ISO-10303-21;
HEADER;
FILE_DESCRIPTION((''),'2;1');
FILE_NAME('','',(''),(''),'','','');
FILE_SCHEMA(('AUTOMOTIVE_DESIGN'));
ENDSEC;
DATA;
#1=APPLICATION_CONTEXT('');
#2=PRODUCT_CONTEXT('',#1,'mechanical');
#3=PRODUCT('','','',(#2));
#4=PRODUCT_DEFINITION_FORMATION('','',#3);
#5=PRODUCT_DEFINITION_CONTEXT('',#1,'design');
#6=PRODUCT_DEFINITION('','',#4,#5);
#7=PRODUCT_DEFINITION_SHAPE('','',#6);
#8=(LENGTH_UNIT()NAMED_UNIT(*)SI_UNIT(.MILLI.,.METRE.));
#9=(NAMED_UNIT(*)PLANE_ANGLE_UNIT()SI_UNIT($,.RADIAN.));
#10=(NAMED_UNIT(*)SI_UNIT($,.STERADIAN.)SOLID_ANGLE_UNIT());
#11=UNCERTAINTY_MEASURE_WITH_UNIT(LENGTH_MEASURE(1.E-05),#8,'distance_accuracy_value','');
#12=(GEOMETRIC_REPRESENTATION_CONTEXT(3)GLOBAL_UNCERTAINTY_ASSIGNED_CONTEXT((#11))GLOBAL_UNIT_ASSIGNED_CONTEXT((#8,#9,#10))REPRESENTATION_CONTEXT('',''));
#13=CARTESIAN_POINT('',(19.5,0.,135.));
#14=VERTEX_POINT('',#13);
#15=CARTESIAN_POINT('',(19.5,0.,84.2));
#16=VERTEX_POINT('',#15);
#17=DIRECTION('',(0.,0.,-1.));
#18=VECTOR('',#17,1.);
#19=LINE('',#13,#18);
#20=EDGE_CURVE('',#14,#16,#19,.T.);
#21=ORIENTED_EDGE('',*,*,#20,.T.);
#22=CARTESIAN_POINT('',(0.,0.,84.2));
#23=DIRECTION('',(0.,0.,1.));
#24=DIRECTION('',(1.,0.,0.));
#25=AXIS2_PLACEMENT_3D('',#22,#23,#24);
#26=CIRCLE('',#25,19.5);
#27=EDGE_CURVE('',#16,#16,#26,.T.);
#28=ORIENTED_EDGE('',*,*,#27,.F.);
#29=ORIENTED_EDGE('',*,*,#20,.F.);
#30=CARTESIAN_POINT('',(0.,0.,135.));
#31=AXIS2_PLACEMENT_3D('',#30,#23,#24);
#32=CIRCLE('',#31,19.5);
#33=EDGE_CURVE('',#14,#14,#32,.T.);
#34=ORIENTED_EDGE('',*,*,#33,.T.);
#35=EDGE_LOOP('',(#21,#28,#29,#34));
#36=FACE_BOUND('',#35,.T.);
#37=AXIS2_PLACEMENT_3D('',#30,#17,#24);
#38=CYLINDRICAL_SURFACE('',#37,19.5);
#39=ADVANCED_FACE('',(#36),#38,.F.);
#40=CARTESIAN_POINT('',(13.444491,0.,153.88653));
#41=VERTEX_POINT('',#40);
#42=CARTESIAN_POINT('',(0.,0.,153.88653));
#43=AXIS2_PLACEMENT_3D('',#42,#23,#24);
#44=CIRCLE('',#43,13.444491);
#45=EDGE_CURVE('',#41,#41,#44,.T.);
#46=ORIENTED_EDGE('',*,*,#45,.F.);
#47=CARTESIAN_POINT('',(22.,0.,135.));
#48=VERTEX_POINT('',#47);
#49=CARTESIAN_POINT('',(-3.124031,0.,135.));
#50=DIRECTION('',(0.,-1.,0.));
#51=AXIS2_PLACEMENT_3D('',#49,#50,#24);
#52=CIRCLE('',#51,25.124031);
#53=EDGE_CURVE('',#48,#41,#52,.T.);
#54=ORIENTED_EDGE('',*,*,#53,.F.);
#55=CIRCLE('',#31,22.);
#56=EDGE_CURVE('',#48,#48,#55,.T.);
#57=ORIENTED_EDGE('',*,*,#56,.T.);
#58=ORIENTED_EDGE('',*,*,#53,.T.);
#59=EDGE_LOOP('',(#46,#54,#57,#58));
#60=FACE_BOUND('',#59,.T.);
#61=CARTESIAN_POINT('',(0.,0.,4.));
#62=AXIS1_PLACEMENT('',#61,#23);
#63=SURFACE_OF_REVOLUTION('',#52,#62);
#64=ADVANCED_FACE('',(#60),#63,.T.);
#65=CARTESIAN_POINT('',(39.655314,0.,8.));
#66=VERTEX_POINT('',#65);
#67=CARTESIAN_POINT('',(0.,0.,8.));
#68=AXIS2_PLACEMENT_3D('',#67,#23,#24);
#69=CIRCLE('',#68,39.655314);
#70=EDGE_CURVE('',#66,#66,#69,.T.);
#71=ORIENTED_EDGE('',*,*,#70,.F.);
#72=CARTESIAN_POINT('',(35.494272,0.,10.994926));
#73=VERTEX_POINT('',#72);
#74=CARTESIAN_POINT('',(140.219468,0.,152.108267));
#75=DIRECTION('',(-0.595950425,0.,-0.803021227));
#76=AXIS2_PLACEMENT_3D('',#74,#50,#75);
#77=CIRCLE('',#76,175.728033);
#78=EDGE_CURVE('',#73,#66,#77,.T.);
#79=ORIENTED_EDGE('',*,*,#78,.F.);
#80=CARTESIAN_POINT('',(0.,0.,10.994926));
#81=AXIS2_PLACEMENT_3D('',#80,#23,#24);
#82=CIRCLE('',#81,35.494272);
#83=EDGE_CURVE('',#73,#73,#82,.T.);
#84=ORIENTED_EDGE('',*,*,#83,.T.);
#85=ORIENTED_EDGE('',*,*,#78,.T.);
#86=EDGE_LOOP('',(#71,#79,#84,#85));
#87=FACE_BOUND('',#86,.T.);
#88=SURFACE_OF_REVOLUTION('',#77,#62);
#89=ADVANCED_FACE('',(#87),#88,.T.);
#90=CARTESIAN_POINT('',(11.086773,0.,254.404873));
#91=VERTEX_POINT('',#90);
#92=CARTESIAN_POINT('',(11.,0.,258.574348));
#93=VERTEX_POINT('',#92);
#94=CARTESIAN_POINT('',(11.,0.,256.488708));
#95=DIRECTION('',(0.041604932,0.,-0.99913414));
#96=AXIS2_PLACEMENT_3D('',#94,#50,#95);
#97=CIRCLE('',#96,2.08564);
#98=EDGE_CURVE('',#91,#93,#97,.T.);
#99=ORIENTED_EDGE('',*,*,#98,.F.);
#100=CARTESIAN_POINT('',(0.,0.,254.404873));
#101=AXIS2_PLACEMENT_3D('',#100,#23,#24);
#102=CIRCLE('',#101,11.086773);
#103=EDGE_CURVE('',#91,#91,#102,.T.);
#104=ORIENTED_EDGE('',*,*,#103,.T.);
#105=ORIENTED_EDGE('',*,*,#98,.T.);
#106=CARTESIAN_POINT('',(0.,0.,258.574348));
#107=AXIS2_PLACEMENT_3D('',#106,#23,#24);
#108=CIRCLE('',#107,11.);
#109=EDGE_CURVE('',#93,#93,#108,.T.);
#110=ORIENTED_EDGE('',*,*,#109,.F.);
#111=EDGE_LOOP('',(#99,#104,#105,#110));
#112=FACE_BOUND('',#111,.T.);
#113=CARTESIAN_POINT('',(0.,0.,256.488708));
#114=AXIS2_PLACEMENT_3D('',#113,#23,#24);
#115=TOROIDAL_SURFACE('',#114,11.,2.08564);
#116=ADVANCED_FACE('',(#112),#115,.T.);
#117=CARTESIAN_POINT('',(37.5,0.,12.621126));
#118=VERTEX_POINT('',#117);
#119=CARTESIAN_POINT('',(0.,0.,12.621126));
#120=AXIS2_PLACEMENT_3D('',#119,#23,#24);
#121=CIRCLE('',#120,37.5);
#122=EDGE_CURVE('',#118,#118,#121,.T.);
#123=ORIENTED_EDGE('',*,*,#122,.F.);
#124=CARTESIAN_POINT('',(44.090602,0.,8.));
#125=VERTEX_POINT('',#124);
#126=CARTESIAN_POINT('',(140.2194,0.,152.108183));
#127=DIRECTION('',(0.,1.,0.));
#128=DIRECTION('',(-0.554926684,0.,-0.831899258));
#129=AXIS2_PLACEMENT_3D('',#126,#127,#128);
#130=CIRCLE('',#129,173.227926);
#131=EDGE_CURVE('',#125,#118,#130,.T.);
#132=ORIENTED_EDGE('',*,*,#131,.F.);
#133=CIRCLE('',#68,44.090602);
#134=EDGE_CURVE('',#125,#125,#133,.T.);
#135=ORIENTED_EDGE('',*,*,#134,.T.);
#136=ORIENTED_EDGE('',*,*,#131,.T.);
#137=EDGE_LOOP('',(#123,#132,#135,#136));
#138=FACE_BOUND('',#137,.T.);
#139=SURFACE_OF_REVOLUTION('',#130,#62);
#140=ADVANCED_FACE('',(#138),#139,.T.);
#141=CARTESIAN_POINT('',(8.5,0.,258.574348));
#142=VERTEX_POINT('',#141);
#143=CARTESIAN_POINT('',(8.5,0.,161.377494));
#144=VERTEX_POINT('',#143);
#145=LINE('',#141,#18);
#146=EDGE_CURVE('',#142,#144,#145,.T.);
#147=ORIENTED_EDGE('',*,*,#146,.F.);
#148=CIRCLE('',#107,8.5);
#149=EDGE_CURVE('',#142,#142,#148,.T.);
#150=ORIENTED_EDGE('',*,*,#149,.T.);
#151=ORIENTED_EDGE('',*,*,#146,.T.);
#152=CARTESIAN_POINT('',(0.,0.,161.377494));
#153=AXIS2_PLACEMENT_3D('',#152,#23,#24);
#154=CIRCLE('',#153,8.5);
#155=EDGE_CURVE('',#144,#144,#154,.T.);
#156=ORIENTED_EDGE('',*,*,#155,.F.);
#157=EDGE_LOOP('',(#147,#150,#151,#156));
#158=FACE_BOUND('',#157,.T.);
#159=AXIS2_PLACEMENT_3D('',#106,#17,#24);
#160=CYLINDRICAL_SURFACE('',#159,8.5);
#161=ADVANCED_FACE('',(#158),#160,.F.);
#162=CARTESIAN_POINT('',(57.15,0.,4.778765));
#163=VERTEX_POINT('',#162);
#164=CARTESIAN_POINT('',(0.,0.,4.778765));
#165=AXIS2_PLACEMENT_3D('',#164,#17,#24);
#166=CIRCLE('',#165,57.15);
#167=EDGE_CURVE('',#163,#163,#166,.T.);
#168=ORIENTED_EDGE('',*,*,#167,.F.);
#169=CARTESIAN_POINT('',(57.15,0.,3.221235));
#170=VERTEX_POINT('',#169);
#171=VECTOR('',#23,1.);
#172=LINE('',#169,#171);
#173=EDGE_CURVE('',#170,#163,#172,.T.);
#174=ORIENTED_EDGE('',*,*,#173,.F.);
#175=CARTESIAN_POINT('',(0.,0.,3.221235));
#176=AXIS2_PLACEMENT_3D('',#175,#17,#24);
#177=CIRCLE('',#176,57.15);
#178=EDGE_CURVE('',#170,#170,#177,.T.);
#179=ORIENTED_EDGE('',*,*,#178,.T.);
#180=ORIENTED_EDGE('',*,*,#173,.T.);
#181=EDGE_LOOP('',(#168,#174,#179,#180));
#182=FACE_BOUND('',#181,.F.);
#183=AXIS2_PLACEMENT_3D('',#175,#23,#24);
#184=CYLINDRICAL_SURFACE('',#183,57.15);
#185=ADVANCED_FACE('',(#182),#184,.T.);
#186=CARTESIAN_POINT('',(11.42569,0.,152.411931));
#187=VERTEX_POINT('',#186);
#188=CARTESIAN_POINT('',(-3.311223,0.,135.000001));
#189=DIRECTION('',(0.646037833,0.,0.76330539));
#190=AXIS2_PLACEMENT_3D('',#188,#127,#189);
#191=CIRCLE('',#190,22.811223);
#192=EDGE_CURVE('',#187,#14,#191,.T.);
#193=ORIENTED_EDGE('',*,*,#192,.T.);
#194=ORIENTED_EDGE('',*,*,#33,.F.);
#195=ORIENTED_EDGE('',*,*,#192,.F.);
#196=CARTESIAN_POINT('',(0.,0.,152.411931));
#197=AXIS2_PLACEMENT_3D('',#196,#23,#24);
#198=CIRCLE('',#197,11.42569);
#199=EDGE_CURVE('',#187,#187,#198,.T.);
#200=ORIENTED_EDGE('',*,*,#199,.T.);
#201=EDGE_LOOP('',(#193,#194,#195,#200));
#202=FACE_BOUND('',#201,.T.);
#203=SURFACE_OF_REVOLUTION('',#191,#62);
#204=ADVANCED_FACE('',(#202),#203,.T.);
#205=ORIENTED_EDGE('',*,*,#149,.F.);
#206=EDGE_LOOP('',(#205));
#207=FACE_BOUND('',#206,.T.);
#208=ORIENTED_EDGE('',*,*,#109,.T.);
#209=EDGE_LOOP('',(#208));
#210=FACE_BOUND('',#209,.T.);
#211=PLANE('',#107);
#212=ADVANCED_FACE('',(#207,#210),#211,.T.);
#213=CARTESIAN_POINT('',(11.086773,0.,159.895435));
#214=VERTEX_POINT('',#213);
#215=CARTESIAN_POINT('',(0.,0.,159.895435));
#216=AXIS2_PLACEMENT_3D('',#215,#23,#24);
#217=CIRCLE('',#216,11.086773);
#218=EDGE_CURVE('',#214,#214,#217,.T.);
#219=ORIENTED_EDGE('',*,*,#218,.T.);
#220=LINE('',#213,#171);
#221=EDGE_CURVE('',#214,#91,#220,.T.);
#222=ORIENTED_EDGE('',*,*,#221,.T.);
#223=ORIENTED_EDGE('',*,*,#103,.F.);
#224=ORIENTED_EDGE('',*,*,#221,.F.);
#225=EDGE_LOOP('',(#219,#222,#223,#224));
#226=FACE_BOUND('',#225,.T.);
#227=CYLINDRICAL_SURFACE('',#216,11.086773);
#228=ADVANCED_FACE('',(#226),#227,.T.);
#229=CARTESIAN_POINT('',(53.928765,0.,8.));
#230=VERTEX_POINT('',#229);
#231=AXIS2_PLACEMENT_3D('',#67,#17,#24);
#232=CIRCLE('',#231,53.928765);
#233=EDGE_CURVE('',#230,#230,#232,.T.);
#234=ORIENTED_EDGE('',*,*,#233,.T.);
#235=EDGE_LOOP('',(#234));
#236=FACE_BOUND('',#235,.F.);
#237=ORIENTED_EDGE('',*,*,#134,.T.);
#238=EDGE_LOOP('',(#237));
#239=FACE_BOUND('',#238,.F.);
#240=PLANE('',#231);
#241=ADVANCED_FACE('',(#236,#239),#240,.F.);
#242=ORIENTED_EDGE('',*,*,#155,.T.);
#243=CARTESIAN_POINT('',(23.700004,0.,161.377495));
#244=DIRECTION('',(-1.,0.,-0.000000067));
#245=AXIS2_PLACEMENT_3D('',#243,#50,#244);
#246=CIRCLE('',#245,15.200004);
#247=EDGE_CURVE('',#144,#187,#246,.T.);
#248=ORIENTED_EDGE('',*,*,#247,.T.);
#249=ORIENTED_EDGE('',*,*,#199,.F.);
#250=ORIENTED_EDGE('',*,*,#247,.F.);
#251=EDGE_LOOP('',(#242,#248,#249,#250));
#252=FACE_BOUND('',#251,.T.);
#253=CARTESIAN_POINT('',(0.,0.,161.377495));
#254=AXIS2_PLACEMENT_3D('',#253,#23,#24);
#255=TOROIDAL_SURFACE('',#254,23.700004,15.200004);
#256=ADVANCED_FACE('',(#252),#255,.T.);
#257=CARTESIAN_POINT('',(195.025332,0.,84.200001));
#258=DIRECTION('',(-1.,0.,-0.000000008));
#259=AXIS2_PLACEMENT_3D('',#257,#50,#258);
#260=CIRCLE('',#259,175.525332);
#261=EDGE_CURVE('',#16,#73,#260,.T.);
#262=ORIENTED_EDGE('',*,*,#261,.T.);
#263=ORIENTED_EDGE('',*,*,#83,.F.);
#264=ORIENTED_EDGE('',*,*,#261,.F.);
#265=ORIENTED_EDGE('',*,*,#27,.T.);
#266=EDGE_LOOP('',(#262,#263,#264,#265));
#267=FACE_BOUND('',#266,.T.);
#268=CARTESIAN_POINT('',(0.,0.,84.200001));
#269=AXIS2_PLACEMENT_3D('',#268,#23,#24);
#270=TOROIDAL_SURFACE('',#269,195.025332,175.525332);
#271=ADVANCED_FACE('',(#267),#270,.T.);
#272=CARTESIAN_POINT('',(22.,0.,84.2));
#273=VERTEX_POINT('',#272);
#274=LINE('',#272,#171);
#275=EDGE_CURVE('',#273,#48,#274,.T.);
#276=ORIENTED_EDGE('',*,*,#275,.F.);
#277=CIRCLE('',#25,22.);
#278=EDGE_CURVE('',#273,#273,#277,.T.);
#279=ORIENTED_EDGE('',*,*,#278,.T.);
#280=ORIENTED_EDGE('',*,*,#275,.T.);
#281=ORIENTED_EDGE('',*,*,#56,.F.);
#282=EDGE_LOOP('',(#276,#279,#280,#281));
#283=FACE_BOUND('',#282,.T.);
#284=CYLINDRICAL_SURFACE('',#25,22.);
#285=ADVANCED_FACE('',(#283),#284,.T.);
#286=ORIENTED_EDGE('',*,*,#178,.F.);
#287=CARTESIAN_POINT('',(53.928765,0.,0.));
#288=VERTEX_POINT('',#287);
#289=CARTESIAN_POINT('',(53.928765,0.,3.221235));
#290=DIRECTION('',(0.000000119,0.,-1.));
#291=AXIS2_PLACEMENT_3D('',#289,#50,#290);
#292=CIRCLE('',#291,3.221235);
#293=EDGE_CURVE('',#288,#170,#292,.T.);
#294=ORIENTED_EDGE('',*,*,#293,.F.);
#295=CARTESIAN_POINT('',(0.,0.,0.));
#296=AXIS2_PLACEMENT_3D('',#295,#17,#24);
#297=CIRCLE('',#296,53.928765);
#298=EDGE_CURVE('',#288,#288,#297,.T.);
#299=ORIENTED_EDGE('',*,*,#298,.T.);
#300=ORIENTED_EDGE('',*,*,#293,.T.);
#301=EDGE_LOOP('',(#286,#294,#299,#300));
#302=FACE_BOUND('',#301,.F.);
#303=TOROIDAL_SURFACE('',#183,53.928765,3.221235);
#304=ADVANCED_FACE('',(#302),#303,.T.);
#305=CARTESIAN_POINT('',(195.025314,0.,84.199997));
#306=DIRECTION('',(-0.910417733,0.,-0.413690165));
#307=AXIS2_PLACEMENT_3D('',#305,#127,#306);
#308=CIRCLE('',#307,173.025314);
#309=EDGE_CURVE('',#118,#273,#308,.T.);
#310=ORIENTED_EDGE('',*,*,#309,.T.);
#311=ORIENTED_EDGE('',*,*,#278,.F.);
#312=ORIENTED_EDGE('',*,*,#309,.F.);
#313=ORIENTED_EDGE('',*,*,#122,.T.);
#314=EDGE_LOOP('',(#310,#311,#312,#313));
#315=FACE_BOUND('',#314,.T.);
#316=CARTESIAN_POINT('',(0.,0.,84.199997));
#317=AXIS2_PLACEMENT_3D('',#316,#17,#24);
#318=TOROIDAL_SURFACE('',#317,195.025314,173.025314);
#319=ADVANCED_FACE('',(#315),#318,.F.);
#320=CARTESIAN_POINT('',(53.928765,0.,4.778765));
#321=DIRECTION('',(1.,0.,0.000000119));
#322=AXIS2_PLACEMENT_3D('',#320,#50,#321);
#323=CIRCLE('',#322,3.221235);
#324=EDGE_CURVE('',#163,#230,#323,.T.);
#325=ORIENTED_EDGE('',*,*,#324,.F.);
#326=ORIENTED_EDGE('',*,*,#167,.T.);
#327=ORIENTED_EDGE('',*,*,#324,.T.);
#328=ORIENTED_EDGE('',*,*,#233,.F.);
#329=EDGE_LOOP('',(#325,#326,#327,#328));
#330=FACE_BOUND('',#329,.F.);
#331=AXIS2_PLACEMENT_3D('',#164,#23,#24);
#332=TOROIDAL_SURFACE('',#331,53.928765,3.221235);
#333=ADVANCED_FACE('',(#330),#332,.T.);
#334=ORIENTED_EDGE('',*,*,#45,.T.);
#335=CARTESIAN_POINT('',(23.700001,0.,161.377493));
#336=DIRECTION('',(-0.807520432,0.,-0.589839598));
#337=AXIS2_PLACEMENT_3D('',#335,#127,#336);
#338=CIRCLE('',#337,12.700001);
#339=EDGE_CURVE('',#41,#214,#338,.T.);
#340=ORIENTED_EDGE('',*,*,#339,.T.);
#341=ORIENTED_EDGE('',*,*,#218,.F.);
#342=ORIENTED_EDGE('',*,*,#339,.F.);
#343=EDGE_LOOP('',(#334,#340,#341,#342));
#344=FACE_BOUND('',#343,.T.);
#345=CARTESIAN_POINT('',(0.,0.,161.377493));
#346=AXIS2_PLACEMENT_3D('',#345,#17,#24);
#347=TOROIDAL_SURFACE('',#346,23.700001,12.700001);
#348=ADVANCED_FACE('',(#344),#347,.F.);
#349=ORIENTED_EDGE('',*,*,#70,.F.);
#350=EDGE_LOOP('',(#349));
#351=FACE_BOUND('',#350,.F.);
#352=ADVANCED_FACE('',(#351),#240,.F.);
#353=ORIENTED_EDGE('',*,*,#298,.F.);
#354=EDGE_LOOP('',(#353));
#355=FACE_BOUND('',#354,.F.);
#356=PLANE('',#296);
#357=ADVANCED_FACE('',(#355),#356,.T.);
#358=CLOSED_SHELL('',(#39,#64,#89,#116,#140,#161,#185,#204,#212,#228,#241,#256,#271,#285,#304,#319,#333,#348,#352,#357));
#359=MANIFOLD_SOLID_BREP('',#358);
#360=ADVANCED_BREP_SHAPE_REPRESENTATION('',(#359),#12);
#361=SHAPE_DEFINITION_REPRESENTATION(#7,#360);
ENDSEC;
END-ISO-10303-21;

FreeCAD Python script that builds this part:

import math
import FreeCAD as App
import Part
import Sketcher
from FreeCAD import Vector
Q = App.Units.Quantity

doc = App.newDocument("Part")
body = doc.addObject("PartDesign::Body", "Body")

# Sketch on XZ plane
sketch1 = body.newObject("Sketcher::SketchObject", "Sketch")
sketch1.AttachmentSupport = (doc.getObject("XZ_Plane"), [""])
sketch1.MapMode = "FlatFace"
sketch1.addGeometry(Part.LineSegment(Vector(0, 8, 0), Vector(0, 0, 0)), False)
sketch1.addGeometry(Part.LineSegment(Vector(0, 0, 0), Vector(53.928765, 0, 0)), False)
sketch1.addGeometry(Part.ArcOfCircle(Part.Circle(Vector(53.928765, 3.221235, 0), Vector(0, 0, 1), 3.221235), math.radians(-89.999993), math.radians(-0.000007)), False)
sketch1.addGeometry(Part.LineSegment(Vector(57.15, 3.221235, 0), Vector(57.15, 4.778765, 0)), False)
sketch1.addGeometry(Part.ArcOfCircle(Part.Circle(Vector(53.928765, 4.778765, 0), Vector(0, 0, 1), 3.221235), math.radians(0.000007), math.radians(89.999993)), False)
sketch1.addGeometry(Part.LineSegment(Vector(53.928765, 8, 0), Vector(0, 8, 0)), False)
sketch1.addConstraint(Sketcher.Constraint("Coincident", 0, 2, 1, 1))
sketch1.addConstraint(Sketcher.Constraint("Tangent", 1, 2, 2, 1))
sketch1.addConstraint(Sketcher.Constraint("Tangent", 2, 2, 3, 1))
sketch1.addConstraint(Sketcher.Constraint("Tangent", 3, 2, 4, 1))
sketch1.addConstraint(Sketcher.Constraint("Tangent", 4, 2, 5, 1))
sketch1.addConstraint(Sketcher.Constraint("Coincident", 5, 2, 0, 1))
sketch1.addConstraint(Sketcher.Constraint("Vertical", 0))
sketch1.addConstraint(Sketcher.Constraint("Horizontal", 1))
sketch1.addConstraint(Sketcher.Constraint("Vertical", 3))
sketch1.addConstraint(Sketcher.Constraint("Horizontal", 5))
sketch1.addConstraint(Sketcher.Constraint("Coincident", 0, 2, -1, 1))
sketch1.addConstraint(Sketcher.Constraint("Equal", 2, 4))
sketch1.addConstraint(Sketcher.Constraint("DistanceY", 0, 2, 0, 1, Q("8 mm")))
sketch1.addConstraint(Sketcher.Constraint("DistanceX", -1, 1, 2, 2, Q("57.15 mm")))
sketch1.addConstraint(Sketcher.Constraint("Radius", 2, Q("3.221235 mm")))
revolution = body.newObject("PartDesign::Revolution", "Revolution")
revolution.Profile = sketch1
revolution.ReferenceAxis = (sketch1, ["V_Axis"])
revolution.Angle = 360

# Sketch on XZ plane
sketch2 = body.newObject("Sketcher::SketchObject", "Sketch001")
sketch2.AttachmentSupport = (doc.getObject("XZ_Plane"), [""])
sketch2.MapMode = "FlatFace"
sketch2.addGeometry(Part.ArcOfCircle(Part.Circle(Vector(195.025314, 84.199997, 0), Vector(0, 0, 1), 173.025314), math.radians(179.999999), math.radians(204.436857)), False)
sketch2.addGeometry(Part.LineSegment(Vector(22, 84.2, 0), Vector(22, 135, 0)), False)
sketch2.addGeometry(Part.ArcOfCircle(Part.Circle(Vector(-3.124031, 135, 0), Vector(0, 0, 1), 25.124031), math.radians(0), math.radians(48.740604)), False)
sketch2.addGeometry(Part.ArcOfCircle(Part.Circle(Vector(23.700001, 161.377493, 0), Vector(0, 0, 1), 12.700001), math.radians(-173.298456), math.radians(-143.854374)), False)
sketch2.addGeometry(Part.LineSegment(Vector(11.086773, 159.895435, 0), Vector(11.086773, 254.404873, 0)), False)
sketch2.addGeometry(Part.ArcOfCircle(Part.Circle(Vector(11, 256.488708, 0), Vector(0, 0, 1), 2.08564), math.radians(-87.615525), math.radians(90.000002)), False)
sketch2.addGeometry(Part.LineSegment(Vector(11, 258.574348, 0), Vector(8.5, 258.574348, 0)), False)
sketch2.addGeometry(Part.LineSegment(Vector(8.5, 258.574348, 0), Vector(8.5, 161.377494, 0)), False)
sketch2.addGeometry(Part.ArcOfCircle(Part.Circle(Vector(23.700004, 161.377495, 0), Vector(0, 0, 1), 15.200004), math.radians(-179.999996), math.radians(-143.854375)), False)
sketch2.addGeometry(Part.ArcOfCircle(Part.Circle(Vector(-3.311223, 135.000001, 0), Vector(0, 0, 1), 22.811223), math.radians(-0.000003), math.radians(49.756467)), False)
sketch2.addGeometry(Part.LineSegment(Vector(19.5, 135, 0), Vector(19.5, 84.2, 0)), False)
sketch2.addGeometry(Part.ArcOfCircle(Part.Circle(Vector(195.025332, 84.200001, 0), Vector(0, 0, 1), 175.525332), math.radians(-180), math.radians(-155.350716)), False)
sketch2.addGeometry(Part.ArcOfCircle(Part.Circle(Vector(140.219468, 152.108267, 0), Vector(0, 0, 1), 175.728033), math.radians(-126.580415), math.radians(-124.90878)), False)
sketch2.addGeometry(Part.LineSegment(Vector(39.655314, 8, 0), Vector(44.090602, 8, 0)), False)
sketch2.addGeometry(Part.ArcOfCircle(Part.Circle(Vector(140.2194, 152.108183, 0), Vector(0, 0, 1), 173.227926), math.radians(-126.368232), math.radians(-123.705665)), False)
sketch2.addConstraint(Sketcher.Constraint("Tangent", 0, 1, 1, 1))
sketch2.addConstraint(Sketcher.Constraint("Tangent", 1, 2, 2, 1))
sketch2.addConstraint(Sketcher.Constraint("Coincident", 2, 2, 3, 2))
sketch2.addConstraint(Sketcher.Constraint("Coincident", 3, 1, 4, 1))
sketch2.addConstraint(Sketcher.Constraint("Coincident", 4, 2, 5, 1))
sketch2.addConstraint(Sketcher.Constraint("Tangent", 5, 2, 6, 1))
sketch2.addConstraint(Sketcher.Constraint("Coincident", 6, 2, 7, 1))
sketch2.addConstraint(Sketcher.Constraint("Tangent", 7, 2, 8, 1))
sketch2.addConstraint(Sketcher.Constraint("Coincident", 8, 2, 9, 2))
sketch2.addConstraint(Sketcher.Constraint("Tangent", 9, 1, 10, 1))
sketch2.addConstraint(Sketcher.Constraint("Tangent", 10, 2, 11, 1))
sketch2.addConstraint(Sketcher.Constraint("Coincident", 11, 2, 12, 1))
sketch2.addConstraint(Sketcher.Constraint("Coincident", 12, 2, 13, 1))
sketch2.addConstraint(Sketcher.Constraint("Coincident", 13, 2, 14, 2))
sketch2.addConstraint(Sketcher.Constraint("Coincident", 14, 1, 0, 2))
sketch2.addConstraint(Sketcher.Constraint("Vertical", 1))
sketch2.addConstraint(Sketcher.Constraint("Vertical", 4))
sketch2.addConstraint(Sketcher.Constraint("Horizontal", 6))
sketch2.addConstraint(Sketcher.Constraint("Vertical", 7))
sketch2.addConstraint(Sketcher.Constraint("Vertical", 10))
sketch2.addConstraint(Sketcher.Constraint("Horizontal", 13))
sketch2.addConstraint(Sketcher.Constraint("Coincident", 8, 3, 3, 3))
sketch2.addConstraint(Sketcher.Constraint("Horizontal", 2, 3, 9, 3))
sketch2.addConstraint(Sketcher.Constraint("Horizontal", 11, 3, 0, 1))
sketch2.addConstraint(Sketcher.Constraint("Radius", 3, Q("12.700001 mm")))
sketch2.addConstraint(Sketcher.Constraint("DistanceX", 6, 2, 6, 1, Q("2.5 mm")))
sketch2.addConstraint(Sketcher.Constraint("DistanceY", 1, 1, 1, 2, Q("50.8 mm")))
sketch2.addConstraint(Sketcher.Constraint("DistanceY", -1, 1, 2, 3, Q("135 mm")))
sketch2.addConstraint(Sketcher.Constraint("DistanceX", -1, 1, 5, 3, Q("11 mm")))
sketch2.addConstraint(Sketcher.Constraint("DistanceX", -1, 1, 0, 1, Q("22 mm")))
sketch2.addConstraint(Sketcher.Constraint("DistanceY", -1, 1, 12, 2, Q("8 mm")))
sketch2.addConstraint(Sketcher.Constraint("DistanceX", 10, 2, 14, 1, Q("18 mm")))
sketch2.addConstraint(Sketcher.Constraint("DistanceX", -1, 1, 3, 3, Q("23.700001 mm")))
sketch2.addConstraint(Sketcher.Constraint("DistanceX", -1, 1, 9, 1, Q("19.5 mm")))
sketch2.addConstraint(Sketcher.Constraint("Radius", 2, Q("25.124031 mm")))
sketch2.addConstraint(Sketcher.Constraint("Radius", 5, Q("2.08564 mm")))
sketch2.addConstraint(Sketcher.Constraint("Radius", 11, Q("175.525332 mm")))
sketch2.addConstraint(Sketcher.Constraint("Radius", 0, Q("173.025314 mm")))
sketch2.addConstraint(Sketcher.Constraint("Radius", 9, Q("22.811223 mm")))
sketch2.addConstraint(Sketcher.Constraint("Radius", 12, Q("175.728033 mm")))
sketch2.addConstraint(Sketcher.Constraint("Radius", 14, Q("173.227926 mm")))
sketch2.addConstraint(Sketcher.Constraint("DistanceY", 4, 1, 4, 2, Q("94.509438 mm")))
sketch2.addConstraint(Sketcher.Constraint("DistanceX", -1, 1, 14, 3, Q("140.2194 mm")))
sketch2.addConstraint(Sketcher.Constraint("DistanceY", 0, 3, 8, 3, Q("77.177498 mm")))
sketch2.addConstraint(Sketcher.Constraint("DistanceX", 2, 3, 12, 3, Q("143.343499 mm")))
sketch2.addConstraint(Sketcher.Constraint("DistanceY", 11, 2, 14, 1, Q("1.6262 mm")))
sketch2.addConstraint(Sketcher.Constraint("DistanceY", 7, 2, 7, 1, Q("97.196854 mm")))
revolution2 = body.newObject("PartDesign::Revolution", "Revolution001")
revolution2.Profile = sketch2
revolution2.ReferenceAxis = (sketch2, ["V_Axis"])
revolution2.Angle = 360

doc.recompute()
